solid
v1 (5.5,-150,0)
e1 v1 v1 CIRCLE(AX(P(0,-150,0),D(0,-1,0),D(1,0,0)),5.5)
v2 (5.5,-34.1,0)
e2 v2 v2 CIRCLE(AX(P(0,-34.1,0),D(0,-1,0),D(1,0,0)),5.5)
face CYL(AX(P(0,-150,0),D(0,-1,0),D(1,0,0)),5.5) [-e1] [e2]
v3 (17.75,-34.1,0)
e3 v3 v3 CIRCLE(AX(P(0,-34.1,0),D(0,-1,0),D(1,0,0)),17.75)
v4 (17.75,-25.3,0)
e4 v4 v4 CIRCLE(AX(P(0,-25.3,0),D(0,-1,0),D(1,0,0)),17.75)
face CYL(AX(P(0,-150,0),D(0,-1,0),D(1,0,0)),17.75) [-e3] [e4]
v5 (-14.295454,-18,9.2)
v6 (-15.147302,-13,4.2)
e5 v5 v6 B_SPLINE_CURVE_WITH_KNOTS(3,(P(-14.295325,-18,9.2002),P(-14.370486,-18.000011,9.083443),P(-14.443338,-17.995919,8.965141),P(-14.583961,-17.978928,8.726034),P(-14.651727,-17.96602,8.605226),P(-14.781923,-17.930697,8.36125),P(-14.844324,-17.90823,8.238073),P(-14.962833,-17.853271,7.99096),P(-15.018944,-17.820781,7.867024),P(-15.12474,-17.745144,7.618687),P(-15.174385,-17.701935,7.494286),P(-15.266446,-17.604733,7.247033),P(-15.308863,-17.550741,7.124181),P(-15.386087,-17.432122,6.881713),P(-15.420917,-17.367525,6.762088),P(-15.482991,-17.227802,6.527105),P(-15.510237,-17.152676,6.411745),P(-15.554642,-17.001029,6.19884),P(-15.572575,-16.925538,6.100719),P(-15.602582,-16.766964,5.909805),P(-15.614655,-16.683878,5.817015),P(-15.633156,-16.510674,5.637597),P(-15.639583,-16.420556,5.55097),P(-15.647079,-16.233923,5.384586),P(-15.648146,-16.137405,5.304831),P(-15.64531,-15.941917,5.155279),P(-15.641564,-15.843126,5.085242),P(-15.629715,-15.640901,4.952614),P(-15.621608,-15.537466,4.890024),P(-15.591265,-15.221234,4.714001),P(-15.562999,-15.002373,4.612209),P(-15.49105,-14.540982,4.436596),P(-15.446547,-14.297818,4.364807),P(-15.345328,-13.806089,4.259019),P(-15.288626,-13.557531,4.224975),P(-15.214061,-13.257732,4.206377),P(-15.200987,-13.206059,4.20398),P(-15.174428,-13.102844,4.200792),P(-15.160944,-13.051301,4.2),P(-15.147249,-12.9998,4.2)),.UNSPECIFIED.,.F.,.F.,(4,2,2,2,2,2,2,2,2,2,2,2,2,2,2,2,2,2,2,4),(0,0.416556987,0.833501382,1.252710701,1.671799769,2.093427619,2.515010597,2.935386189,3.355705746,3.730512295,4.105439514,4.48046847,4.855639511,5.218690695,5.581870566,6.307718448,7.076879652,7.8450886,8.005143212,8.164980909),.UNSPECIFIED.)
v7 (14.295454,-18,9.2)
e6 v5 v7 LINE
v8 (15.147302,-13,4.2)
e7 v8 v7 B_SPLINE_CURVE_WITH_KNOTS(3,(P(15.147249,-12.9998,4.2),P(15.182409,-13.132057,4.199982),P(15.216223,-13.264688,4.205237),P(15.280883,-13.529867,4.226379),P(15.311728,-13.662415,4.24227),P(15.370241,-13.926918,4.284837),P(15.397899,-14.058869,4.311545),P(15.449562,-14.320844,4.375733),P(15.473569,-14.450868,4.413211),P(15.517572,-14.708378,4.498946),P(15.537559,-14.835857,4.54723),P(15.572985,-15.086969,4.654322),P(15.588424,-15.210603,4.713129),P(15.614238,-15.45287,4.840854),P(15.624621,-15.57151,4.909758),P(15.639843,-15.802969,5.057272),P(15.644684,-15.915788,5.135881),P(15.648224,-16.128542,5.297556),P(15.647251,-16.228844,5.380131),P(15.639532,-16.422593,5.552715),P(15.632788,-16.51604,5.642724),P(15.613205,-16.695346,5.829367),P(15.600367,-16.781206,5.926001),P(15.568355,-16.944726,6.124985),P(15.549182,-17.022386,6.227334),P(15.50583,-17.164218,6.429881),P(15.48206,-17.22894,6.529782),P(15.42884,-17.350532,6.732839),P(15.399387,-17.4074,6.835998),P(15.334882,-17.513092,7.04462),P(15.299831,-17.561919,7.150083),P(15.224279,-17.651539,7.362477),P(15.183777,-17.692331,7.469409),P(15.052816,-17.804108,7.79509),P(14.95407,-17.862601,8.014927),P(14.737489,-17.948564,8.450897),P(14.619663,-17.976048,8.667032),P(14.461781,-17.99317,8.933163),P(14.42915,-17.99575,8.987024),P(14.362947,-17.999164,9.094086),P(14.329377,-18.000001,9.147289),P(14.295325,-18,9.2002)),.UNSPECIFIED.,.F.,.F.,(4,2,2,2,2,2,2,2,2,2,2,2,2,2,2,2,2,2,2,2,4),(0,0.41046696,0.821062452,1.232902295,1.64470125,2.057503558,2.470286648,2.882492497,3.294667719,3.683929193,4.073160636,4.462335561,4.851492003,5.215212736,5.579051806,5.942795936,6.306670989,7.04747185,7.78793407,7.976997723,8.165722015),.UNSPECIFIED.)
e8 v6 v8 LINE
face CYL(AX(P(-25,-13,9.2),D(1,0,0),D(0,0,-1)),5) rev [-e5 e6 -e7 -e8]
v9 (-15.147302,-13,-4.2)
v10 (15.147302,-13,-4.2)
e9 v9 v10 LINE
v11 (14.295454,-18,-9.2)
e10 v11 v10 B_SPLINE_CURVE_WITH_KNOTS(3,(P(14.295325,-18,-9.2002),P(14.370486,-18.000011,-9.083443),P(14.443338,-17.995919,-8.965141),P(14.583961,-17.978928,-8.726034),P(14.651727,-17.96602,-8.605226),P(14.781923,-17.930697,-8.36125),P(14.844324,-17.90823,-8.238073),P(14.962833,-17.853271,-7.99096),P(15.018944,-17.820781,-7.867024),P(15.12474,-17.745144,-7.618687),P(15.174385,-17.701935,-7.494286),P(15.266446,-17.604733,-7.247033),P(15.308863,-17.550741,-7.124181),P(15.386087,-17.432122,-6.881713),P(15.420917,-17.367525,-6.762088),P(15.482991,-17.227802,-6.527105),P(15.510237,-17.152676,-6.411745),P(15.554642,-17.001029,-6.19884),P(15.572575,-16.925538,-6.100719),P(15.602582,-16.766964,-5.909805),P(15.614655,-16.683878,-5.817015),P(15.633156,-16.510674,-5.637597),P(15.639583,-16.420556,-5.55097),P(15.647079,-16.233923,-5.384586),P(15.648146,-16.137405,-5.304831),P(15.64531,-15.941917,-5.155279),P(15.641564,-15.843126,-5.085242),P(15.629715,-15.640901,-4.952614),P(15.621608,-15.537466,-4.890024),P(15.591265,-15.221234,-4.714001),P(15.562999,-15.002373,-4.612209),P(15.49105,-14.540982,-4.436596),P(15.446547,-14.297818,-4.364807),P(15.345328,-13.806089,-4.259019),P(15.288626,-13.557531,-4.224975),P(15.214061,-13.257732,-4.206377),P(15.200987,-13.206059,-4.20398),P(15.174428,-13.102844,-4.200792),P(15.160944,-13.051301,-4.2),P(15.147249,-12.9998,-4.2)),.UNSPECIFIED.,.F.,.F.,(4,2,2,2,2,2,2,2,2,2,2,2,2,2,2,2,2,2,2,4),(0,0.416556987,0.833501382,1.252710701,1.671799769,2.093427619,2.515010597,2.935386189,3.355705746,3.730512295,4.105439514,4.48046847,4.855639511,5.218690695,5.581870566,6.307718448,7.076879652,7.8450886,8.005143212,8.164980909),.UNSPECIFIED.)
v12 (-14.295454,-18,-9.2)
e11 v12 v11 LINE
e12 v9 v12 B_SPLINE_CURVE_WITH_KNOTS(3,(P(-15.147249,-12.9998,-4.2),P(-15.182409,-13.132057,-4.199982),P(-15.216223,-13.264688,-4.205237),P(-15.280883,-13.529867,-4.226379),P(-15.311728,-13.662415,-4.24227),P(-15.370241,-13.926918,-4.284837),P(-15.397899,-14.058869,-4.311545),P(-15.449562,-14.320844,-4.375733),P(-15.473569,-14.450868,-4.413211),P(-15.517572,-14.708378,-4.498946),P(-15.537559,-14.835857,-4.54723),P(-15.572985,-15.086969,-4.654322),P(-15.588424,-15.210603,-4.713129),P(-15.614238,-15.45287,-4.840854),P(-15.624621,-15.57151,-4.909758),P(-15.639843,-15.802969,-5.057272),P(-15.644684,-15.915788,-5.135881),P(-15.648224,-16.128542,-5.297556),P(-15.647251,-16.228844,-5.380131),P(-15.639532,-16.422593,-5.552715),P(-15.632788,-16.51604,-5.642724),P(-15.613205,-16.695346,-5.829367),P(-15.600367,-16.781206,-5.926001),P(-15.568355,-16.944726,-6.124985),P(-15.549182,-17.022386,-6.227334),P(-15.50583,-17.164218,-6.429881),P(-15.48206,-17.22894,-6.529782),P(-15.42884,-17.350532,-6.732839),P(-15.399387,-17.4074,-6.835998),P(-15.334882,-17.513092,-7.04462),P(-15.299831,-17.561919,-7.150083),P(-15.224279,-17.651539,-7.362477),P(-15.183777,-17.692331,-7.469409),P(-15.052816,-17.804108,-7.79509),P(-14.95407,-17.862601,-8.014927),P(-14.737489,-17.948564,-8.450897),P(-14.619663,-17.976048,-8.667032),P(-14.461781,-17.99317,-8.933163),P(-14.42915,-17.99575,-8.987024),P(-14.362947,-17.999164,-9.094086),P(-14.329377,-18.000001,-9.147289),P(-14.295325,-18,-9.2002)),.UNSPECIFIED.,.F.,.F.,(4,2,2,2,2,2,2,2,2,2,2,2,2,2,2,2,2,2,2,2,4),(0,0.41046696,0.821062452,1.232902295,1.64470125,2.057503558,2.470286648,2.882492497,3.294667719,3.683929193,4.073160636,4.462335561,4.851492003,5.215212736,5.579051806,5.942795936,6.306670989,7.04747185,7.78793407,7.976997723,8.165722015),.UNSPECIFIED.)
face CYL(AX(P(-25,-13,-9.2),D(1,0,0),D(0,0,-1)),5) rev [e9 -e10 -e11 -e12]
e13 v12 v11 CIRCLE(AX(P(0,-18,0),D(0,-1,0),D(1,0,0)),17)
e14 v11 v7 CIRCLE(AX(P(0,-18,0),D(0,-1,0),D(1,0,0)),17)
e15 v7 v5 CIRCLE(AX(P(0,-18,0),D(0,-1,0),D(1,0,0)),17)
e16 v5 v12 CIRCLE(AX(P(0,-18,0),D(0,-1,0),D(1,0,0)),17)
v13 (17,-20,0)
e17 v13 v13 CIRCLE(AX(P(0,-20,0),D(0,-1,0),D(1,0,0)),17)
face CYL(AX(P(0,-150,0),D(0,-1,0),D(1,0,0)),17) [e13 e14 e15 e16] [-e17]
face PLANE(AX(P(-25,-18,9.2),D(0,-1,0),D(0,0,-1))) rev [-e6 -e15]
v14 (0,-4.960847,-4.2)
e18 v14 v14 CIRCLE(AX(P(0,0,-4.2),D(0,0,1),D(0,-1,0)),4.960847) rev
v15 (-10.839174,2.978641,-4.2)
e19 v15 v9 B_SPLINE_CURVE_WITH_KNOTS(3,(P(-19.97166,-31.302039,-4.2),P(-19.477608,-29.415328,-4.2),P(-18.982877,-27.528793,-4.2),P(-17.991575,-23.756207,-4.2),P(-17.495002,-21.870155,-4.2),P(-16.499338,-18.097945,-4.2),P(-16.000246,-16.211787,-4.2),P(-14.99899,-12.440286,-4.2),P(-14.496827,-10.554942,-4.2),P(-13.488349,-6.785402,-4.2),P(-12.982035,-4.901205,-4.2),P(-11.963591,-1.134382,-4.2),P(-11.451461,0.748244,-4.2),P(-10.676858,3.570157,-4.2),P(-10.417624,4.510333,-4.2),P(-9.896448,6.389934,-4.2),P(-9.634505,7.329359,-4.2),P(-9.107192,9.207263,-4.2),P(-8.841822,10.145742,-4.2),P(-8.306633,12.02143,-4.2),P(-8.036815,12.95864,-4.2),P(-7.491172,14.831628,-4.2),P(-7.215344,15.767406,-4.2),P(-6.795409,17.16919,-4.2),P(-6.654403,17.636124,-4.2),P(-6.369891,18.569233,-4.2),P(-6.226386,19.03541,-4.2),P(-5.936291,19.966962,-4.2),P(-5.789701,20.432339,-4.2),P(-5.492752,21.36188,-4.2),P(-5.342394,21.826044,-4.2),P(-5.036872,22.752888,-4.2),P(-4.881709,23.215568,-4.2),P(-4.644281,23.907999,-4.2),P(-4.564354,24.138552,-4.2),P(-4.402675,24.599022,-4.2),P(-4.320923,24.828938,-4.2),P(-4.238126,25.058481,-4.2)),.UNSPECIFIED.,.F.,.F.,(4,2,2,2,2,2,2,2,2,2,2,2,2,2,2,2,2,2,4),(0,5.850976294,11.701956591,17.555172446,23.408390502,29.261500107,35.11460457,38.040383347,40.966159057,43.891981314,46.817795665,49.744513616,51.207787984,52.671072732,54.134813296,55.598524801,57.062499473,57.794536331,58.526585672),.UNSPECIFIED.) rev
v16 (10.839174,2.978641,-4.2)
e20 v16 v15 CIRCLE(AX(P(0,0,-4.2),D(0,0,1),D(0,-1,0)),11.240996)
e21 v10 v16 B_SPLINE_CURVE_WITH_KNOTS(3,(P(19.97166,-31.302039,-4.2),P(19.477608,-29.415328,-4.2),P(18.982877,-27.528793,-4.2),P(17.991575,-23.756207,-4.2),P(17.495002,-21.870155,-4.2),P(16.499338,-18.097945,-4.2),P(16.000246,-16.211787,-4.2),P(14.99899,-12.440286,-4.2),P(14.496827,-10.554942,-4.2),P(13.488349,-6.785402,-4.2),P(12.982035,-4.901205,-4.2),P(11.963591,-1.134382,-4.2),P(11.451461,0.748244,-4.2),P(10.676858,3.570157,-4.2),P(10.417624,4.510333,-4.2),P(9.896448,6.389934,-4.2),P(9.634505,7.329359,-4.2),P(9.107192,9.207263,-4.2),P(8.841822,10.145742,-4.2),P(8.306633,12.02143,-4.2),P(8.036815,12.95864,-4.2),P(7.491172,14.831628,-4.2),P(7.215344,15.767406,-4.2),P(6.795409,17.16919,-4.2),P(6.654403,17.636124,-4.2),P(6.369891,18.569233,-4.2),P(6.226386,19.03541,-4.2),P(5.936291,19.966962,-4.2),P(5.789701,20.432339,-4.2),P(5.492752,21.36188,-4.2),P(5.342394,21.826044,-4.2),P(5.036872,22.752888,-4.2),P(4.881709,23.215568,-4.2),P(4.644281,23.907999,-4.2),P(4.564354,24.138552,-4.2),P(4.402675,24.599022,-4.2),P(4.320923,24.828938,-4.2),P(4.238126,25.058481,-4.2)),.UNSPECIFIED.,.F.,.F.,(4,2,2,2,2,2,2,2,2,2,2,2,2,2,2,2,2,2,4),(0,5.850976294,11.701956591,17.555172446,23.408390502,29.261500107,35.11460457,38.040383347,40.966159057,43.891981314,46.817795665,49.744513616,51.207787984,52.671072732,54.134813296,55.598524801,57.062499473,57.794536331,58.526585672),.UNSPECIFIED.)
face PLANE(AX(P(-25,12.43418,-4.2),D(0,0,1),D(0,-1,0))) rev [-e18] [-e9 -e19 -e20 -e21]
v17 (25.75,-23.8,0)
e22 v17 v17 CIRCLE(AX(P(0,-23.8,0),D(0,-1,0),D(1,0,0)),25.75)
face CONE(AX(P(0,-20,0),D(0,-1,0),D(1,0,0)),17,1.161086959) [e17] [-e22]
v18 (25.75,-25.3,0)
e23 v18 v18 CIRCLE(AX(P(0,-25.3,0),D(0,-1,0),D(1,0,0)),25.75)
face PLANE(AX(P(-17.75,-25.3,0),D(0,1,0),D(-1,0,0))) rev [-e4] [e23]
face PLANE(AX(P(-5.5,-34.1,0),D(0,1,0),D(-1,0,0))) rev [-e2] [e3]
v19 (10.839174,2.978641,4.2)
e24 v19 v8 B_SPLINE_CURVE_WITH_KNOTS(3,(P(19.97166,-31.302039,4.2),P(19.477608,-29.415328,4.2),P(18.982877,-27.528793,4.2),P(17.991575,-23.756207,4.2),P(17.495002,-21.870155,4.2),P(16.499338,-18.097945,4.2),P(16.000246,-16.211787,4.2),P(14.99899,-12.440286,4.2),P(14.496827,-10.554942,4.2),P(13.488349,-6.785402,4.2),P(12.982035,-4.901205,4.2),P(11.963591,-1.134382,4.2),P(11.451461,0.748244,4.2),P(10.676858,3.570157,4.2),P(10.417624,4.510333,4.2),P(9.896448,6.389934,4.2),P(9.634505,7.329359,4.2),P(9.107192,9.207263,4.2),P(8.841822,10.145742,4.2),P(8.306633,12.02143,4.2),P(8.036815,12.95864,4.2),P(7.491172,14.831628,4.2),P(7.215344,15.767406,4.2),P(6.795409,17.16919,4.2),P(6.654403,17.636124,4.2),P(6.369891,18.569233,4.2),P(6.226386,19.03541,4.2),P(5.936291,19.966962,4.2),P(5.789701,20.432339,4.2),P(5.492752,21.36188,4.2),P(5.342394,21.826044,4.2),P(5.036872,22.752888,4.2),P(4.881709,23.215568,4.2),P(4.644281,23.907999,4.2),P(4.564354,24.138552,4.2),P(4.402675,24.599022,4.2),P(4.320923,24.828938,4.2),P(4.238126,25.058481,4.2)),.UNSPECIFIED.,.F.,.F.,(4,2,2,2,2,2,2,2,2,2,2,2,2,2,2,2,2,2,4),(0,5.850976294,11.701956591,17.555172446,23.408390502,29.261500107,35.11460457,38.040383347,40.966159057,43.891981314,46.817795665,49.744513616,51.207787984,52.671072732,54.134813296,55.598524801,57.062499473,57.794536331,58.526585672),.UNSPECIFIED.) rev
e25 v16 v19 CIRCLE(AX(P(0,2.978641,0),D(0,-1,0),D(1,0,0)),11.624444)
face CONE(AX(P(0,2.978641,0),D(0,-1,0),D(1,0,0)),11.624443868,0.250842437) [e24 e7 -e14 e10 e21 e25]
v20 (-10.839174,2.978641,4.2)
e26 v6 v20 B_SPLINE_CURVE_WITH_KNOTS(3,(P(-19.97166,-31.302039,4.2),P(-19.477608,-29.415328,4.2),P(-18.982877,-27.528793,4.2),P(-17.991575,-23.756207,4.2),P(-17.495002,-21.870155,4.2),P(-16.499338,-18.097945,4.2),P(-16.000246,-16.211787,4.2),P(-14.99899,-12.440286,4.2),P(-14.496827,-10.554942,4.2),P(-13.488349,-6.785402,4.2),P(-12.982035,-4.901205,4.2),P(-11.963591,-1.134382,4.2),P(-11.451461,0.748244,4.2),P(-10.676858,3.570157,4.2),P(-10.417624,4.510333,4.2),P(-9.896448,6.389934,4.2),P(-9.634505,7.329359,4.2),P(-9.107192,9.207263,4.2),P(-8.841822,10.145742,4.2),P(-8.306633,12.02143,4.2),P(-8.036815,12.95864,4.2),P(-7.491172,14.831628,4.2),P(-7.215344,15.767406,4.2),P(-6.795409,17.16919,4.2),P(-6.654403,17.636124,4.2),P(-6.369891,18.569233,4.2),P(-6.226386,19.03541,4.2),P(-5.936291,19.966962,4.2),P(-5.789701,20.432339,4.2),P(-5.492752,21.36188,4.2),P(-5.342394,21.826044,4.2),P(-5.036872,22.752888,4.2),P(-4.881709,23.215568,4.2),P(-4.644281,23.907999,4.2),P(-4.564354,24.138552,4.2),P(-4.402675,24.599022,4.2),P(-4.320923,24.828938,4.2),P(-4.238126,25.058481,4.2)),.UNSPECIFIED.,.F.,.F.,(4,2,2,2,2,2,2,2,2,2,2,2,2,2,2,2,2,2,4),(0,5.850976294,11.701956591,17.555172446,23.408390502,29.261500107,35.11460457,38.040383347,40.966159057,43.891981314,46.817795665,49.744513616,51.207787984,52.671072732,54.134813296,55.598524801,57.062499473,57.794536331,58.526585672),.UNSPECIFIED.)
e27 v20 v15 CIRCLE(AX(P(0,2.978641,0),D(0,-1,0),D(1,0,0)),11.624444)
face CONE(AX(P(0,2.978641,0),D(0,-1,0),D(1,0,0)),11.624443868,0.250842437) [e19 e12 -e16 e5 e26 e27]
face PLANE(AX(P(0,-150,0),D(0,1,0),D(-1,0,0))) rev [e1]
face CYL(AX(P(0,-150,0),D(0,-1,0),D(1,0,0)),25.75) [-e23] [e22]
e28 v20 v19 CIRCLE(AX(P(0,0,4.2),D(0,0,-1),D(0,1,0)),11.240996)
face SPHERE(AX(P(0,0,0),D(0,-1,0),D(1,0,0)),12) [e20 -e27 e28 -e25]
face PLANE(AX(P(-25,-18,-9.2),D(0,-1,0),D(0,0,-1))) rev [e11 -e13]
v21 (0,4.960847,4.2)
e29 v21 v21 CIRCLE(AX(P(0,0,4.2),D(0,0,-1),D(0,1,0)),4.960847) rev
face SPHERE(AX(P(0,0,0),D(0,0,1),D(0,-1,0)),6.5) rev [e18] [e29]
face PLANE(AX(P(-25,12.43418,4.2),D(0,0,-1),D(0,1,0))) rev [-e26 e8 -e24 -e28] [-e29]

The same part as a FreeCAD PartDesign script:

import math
import FreeCAD as App
import Part
import Sketcher
from FreeCAD import Vector
Q = App.Units.Quantity

doc = App.newDocument("Part")
body = doc.addObject("PartDesign::Body", "Body")

sketch1 = doc.addObject("Sketcher::SketchObject", "Sketch")
body.addObject(sketch1)
sketch1.AttachmentSupport = (doc.XY_Plane, [""])
sketch1.MapMode = "FlatFace"
sketch1.addGeometry([
    Part.LineSegment(Vector(-5.5, -150, 0), Vector(0, -150, 0)),
    Part.LineSegment(Vector(0, -150, 0), Vector(0, 12, 0)),
    Part.ArcOfCircle(Part.Circle(Vector(0, 0, 0), Vector(0, 0, 1), 12), math.radians(90), math.radians(166)),
    Part.LineSegment(Vector(-11.6, 3, 0), Vector(-17, -18, 0)),
    Part.LineSegment(Vector(-17, -18, 0), Vector(-17, -20, 0)),
    Part.LineSegment(Vector(-17, -20, 0), Vector(-25.8, -23.8, 0)),
    Part.LineSegment(Vector(-25.8, -23.8, 0), Vector(-25.8, -25.3, 0)),
    Part.LineSegment(Vector(-25.8, -25.3, 0), Vector(-17.8, -25.3, 0)),
    Part.LineSegment(Vector(-17.8, -25.3, 0), Vector(-17.8, -34.1, 0)),
    Part.LineSegment(Vector(-17.8, -34.1, 0), Vector(-5.5, -34.1, 0)),
    Part.LineSegment(Vector(-5.5, -34.1, 0), Vector(-5.5, -150, 0)),
], False)
sketch1.addConstraint([
    Sketcher.Constraint("Coincident", 0, 2, 1, 1),
    Sketcher.Constraint("Coincident", 1, 2, 2, 1),
    Sketcher.Constraint("Tangent", 2, 2, 3, 1),
    Sketcher.Constraint("Coincident", 3, 2, 4, 1),
    Sketcher.Constraint("Coincident", 4, 2, 5, 1),
    Sketcher.Constraint("Coincident", 5, 2, 6, 1),
    Sketcher.Constraint("Coincident", 6, 2, 7, 1),
    Sketcher.Constraint("Coincident", 7, 2, 8, 1),
    Sketcher.Constraint("Coincident", 8, 2, 9, 1),
    Sketcher.Constraint("Coincident", 9, 2, 10, 1),
    Sketcher.Constraint("Coincident", 10, 2, 0, 1),
    Sketcher.Constraint("Horizontal", 0),
    Sketcher.Constraint("Vertical", 1),
    Sketcher.Constraint("Vertical", 4),
    Sketcher.Constraint("Vertical", 6),
    Sketcher.Constraint("Horizontal", 7),
    Sketcher.Constraint("Vertical", 8),
    Sketcher.Constraint("Horizontal", 9),
    Sketcher.Constraint("Vertical", 10),
    Sketcher.Constraint("Coincident", 2, 3, -1, 1),
    Sketcher.Constraint("PointOnObject", 0, 2, -2),
    Sketcher.Constraint("Radius", 2, Q("12 mm")),
    Sketcher.Constraint("DistanceX", 7, 1, 7, 2, Q("8 mm")),
    Sketcher.Constraint("DistanceY", 1, 1, 1, 2, Q("162 mm")),
    Sketcher.Constraint("DistanceY", 4, 2, 4, 1, Q("2 mm")),
    Sketcher.Constraint("DistanceX", 0, 1, 0, 2, Q("5.5 mm")),
    Sketcher.Constraint("DistanceY", 6, 2, 6, 1, Q("1.5 mm")),
    Sketcher.Constraint("DistanceY", 8, 2, 8, 1, Q("8.8 mm")),
    Sketcher.Constraint("DistanceY", 10, 2, 10, 1, Q("115.9 mm")),
    Sketcher.Constraint("DistanceX", 3, 2, -1, 1, Q("17 mm")),
    Sketcher.Constraint("DistanceY", 3, 2, -1, 1, Q("18 mm")),
    Sketcher.Constraint("DistanceX", 9, 1, 9, 2, Q("12.25 mm")),
])
revolution = doc.addObject("PartDesign::Revolution", "Revolution")
body.addObject(revolution)
revolution.Profile = sketch1
revolution.ReferenceAxis = (sketch1, ["V_Axis"])
revolution.Angle = 360

sketch2 = doc.addObject("Sketcher::SketchObject", "Sketch001")
body.addObject(sketch2)
sketch2.AttachmentSupport = (doc.YZ_Plane, [""])
sketch2.MapMode = "FlatFace"
sketch2.addGeometry([
    Part.LineSegment(Vector(-13, 4, 0), Vector(12, 4, 0)),
    Part.LineSegment(Vector(12, 4, 0), Vector(12, 21, 0)),
    Part.LineSegment(Vector(12, 21, 0), Vector(-18, 21, 0)),
    Part.LineSegment(Vector(-18, 21, 0), Vector(-18, 9, 0)),
    Part.ArcOfCircle(Part.Circle(Vector(-13, 9, 0), Vector(0, 0, 1), 5), math.radians(180), math.radians(270)),
    Part.LineSegment(Vector(12, -21, 0), Vector(12, -4, 0)),
    Part.LineSegment(Vector(12, -4, 0), Vector(-13, -4, 0)),
    Part.ArcOfCircle(Part.Circle(Vector(-13, -9, 0), Vector(0, 0, 1), 5), math.radians(90), math.radians(180)),
    Part.LineSegment(Vector(-18, -9, 0), Vector(-18, -21, 0)),
    Part.LineSegment(Vector(-18, -21, 0), Vector(12, -21, 0)),
], False)
sketch2.addConstraint([
    Sketcher.Constraint("Coincident", 0, 2, 1, 1),
    Sketcher.Constraint("Coincident", 1, 2, 2, 1),
    Sketcher.Constraint("Coincident", 2, 2, 3, 1),
    Sketcher.Constraint("Tangent", 3, 2, 4, 1),
    Sketcher.Constraint("Tangent", 4, 2, 0, 1),
    Sketcher.Constraint("Coincident", 5, 2, 6, 1),
    Sketcher.Constraint("Tangent", 6, 2, 7, 1),
    Sketcher.Constraint("Tangent", 7, 2, 8, 1),
    Sketcher.Constraint("Coincident", 8, 2, 9, 1),
    Sketcher.Constraint("Coincident", 9, 2, 5, 1),
    Sketcher.Constraint("Horizontal", 0),
    Sketcher.Constraint("Vertical", 1),
    Sketcher.Constraint("Horizontal", 2),
    Sketcher.Constraint("Vertical", 3),
    Sketcher.Constraint("Vertical", 5),
    Sketcher.Constraint("Horizontal", 6),
    Sketcher.Constraint("Vertical", 8),
    Sketcher.Constraint("Horizontal", 9),
    Sketcher.Constraint("Equal", 4, 7),
    Sketcher.Constraint("Symmetric", 4, 3, 7, 3, -1),
    Sketcher.Constraint("Symmetric", 1, 2, 9, 2, -1),
    Sketcher.Constraint("Radius", 4, Q("5 mm")),
    Sketcher.Constraint("DistanceX", 4, 3, -1, 1, Q("13 mm")),
    Sketcher.Constraint("DistanceY", -1, 1, 4, 3, Q("9.2 mm")),
    Sketcher.Constraint("DistanceX", 0, 1, 0, 2, Q("25.43418 mm")),
    Sketcher.Constraint("DistanceY", 1, 1, 1, 2, Q("16.907878 mm")),
])
pocket1 = doc.addObject("PartDesign::Pocket", "Pocket")
body.addObject(pocket1)
pocket1.Profile = sketch2
pocket1.Length = 50
pocket1.Midplane = True

sketch3 = doc.addObject("Sketcher::SketchObject", "Sketch002")
body.addObject(sketch3)
sketch3.AttachmentSupport = (doc.XY_Plane, [""])
sketch3.MapMode = "FlatFace"
sketch3.addGeometry([
    Part.LineSegment(Vector(0, -6, 0), Vector(0, 6, 0)),
    Part.ArcOfCircle(Part.Circle(Vector(0, 0, 0), Vector(0, 0, 1), 6), math.radians(90), math.radians(270)),
], False)
sketch3.addConstraint([
    Sketcher.Constraint("Coincident", 0, 1, 1, 2),
    Sketcher.Constraint("Coincident", 1, 1, 0, 2),
    Sketcher.Constraint("Vertical", 0),
    Sketcher.Constraint("Coincident", 1, 3, -1, 1),
    Sketcher.Constraint("PointOnObject", 0, 1, -2),
    Sketcher.Constraint("Radius", 1, Q("6.5 mm")),
])
groove = doc.addObject("PartDesign::Groove", "Groove")
body.addObject(groove)
groove.Profile = sketch3
groove.ReferenceAxis = (sketch3, ["V_Axis"])
groove.Angle = 360

doc.recompute()
